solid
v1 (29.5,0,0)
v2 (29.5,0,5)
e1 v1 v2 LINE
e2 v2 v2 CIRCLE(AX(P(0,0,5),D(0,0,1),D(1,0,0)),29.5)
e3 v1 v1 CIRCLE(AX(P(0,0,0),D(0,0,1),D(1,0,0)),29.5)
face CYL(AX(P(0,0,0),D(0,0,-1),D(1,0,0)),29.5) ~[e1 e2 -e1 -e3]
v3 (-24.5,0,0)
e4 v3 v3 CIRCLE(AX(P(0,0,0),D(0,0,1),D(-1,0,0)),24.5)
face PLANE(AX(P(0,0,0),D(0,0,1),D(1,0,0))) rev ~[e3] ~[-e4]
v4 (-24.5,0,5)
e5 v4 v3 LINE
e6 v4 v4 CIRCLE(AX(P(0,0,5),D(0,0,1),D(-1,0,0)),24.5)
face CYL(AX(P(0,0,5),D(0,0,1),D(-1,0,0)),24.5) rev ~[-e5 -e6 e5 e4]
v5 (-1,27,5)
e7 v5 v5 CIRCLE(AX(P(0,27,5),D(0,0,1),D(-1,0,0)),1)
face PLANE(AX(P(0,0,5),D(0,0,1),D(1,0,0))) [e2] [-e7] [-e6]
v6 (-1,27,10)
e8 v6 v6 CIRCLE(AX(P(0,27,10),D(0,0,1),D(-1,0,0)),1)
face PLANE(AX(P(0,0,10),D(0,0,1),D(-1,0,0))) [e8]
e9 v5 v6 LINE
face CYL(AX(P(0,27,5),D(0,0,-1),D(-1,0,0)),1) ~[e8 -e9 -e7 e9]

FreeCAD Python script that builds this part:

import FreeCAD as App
import Part
import Sketcher

V = App.Vector
Q = App.Units.Quantity

doc = App.newDocument("Part")
body = doc.addObject("PartDesign::Body", "Body")

sketch1 = body.newObject("Sketcher::SketchObject", "Sketch")
sketch1.AttachmentSupport = (doc.getObject("XY_Plane"), [""])
sketch1.MapMode = "FlatFace"
sketch1.addGeometry(Part.Circle(V(0, 0, 0), V(0, 0, 1), 30), False)
sketch1.addConstraint(Sketcher.Constraint("Coincident", 0, 3, -1, 1))
sketch1.addConstraint(Sketcher.Constraint("Diameter", 0, Q("59 mm")))
pad1 = body.newObject("PartDesign::Pad", "Pad")
pad1.Profile = sketch1
pad1.Length = 5

sketch2 = body.newObject("Sketcher::SketchObject", "Sketch001")
sketch2.AttachmentSupport = (doc.getObject("XY_Plane"), [""])
sketch2.MapMode = "FlatFace"
sketch2.AttachmentOffset = App.Placement(V(0, 0, 5), App.Rotation())
sketch2.addGeometry(Part.Circle(V(0, 0, 0), V(0, 0, 1), 24), False)
sketch2.addConstraint(Sketcher.Constraint("Coincident", 0, 3, -1, 1))
sketch2.addConstraint(Sketcher.Constraint("Diameter", 0, Q("49 mm")))
pocket1 = body.newObject("PartDesign::Pocket", "Pocket")
pocket1.Profile = sketch2
pocket1.Length = 115

sketch3 = body.newObject("Sketcher::SketchObject", "Sketch002")
sketch3.AttachmentSupport = (doc.getObject("XY_Plane"), [""])
sketch3.MapMode = "FlatFace"
sketch3.AttachmentOffset = App.Placement(V(0, 0, 5), App.Rotation())
sketch3.addGeometry(Part.Circle(V(0, 27, 0), V(0, 0, 1), 1), False)
sketch3.addConstraint(Sketcher.Constraint("PointOnObject", 0, 3, -2))
sketch3.addConstraint(Sketcher.Constraint("Diameter", 0, Q("2 mm")))
sketch3.addConstraint(Sketcher.Constraint("DistanceY", -1, 1, 0, 3, Q("27 mm")))
pad2 = body.newObject("PartDesign::Pad", "Pad001")
pad2.Profile = sketch3
pad2.Length = 5

doc.recompute()
